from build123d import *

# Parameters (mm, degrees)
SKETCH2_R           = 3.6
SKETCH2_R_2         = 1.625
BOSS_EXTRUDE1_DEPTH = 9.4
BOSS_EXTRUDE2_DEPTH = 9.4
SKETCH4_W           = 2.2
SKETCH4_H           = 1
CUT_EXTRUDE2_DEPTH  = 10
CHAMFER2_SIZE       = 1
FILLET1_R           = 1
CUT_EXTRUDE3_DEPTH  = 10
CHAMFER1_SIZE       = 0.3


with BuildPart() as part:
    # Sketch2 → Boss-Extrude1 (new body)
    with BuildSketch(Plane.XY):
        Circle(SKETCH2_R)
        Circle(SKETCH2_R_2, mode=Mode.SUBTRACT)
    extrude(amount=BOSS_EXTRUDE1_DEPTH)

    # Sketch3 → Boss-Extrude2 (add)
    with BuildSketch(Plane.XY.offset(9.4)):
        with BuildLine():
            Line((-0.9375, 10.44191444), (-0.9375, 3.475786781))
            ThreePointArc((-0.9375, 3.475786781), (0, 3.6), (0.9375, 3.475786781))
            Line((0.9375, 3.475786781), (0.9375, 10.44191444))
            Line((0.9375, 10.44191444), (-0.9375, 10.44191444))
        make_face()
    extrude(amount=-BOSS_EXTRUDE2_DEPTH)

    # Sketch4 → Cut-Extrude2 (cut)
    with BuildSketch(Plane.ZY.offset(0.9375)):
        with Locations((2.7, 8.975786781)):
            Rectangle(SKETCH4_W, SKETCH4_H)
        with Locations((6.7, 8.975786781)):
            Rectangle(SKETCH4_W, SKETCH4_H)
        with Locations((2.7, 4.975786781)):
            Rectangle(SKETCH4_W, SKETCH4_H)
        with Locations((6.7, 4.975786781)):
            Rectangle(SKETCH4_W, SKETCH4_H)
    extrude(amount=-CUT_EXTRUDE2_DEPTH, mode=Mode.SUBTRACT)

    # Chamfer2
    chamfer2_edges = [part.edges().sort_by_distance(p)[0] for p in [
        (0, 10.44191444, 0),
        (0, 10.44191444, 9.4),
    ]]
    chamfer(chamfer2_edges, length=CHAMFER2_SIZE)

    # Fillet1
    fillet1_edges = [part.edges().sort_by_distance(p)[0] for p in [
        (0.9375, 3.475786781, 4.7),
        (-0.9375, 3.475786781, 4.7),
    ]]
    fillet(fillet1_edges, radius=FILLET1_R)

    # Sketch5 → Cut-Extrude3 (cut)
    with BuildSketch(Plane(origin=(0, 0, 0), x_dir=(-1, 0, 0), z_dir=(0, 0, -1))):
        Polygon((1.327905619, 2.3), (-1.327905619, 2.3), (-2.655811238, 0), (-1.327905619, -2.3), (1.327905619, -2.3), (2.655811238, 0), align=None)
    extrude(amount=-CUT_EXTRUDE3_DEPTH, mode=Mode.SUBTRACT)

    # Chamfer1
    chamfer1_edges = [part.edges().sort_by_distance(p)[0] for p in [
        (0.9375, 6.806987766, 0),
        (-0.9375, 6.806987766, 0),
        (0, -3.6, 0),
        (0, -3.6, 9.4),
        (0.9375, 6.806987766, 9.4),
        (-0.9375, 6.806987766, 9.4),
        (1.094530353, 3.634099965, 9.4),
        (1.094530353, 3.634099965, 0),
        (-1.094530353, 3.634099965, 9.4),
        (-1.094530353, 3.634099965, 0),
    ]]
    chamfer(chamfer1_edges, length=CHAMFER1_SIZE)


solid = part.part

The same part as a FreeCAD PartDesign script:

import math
import FreeCAD as App
import Part
import Sketcher

V = App.Vector
Q = App.Units.Quantity


def edges_at(feature, points):
    """Names of the edges that pass closest to the given points."""
    edges = feature.Shape.Edges
    near = lambda p: min(range(len(edges)), key=lambda i: edges[i].distToShape(Part.Vertex(*p))[0])
    return sorted({f"Edge{near(p) + 1}" for p in points})


def add_polygon(sketch, points):
    """Adds a closed chain of lines whose ends are joined by coincident constraints."""
    first, n = sketch.GeometryCount, len(points)
    for a, b in zip(points, points[1:] + points[:1]):
        sketch.addGeometry(Part.LineSegment(App.Vector(*a, 0), App.Vector(*b, 0)), False)
    for i in range(n):
        sketch.addConstraint(Sketcher.Constraint("Coincident", first + i, 2, first + (i + 1) % n, 1))

doc = App.newDocument("Part")
body = doc.addObject("PartDesign::Body", "Body")

sketch1 = body.newObject("Sketcher::SketchObject", "Sketch")
sketch1.AttachmentSupport = (doc.getObject("XY_Plane"), [""])
sketch1.MapMode = "FlatFace"
sketch1.addGeometry([
    Part.Circle(V(0, 0, 0), V(0, 0, 1), 3.6),
    Part.Circle(V(0, 0, 0), V(0, 0, 1), 1.625),
], False)
sketch1.addConstraint([
    Sketcher.Constraint("Coincident", 0, 3, -1, 1),
    Sketcher.Constraint("Coincident", 1, 3, -1, 1),
    Sketcher.Constraint("Diameter", 0, 7.2),
    Sketcher.Constraint("Diameter", 1, 3.25),
])
pad1 = body.newObject("PartDesign::Pad", "Pad")
pad1.Profile = sketch1
pad1.Length = 9.4

sketch2 = body.newObject("Sketcher::SketchObject", "Sketch001")
sketch2.AttachmentSupport = (doc.getObject("XY_Plane"), [""])
sketch2.MapMode = "FlatFace"
sketch2.AttachmentOffset = App.Placement(V(0, 0, 9.4), App.Rotation())
sketch2.addGeometry([
    Part.LineSegment(V(-0.9375, 10.441914, 0), V(-0.9375, 3.475787, 0)),
    Part.ArcOfCircle(Part.Circle(V(0, 0, 0), V(0, 0, 1), 3.6), math.radians(74.905213), math.radians(105.094787)),
    Part.LineSegment(V(0.9375, 3.475787, 0), V(0.9375, 10.441914, 0)),
    Part.LineSegment(V(0.9375, 10.441914, 0), V(-0.9375, 10.441914, 0)),
], False)
sketch2.addConstraint([
    Sketcher.Constraint("Coincident", 0, 2, 1, 2),
    Sketcher.Constraint("Coincident", 1, 1, 2, 1),
    Sketcher.Constraint("Coincident", 2, 2, 3, 1),
    Sketcher.Constraint("Coincident", 3, 2, 0, 1),
    Sketcher.Constraint("Vertical", 0),
    Sketcher.Constraint("Vertical", 2),
    Sketcher.Constraint("Horizontal", 3),
    Sketcher.Constraint("Coincident", 1, 3, -1, 1),
    Sketcher.Constraint("Horizontal", 0, 2, 1, 1),
    Sketcher.Constraint("Radius", 1, 3.6),
    Sketcher.Constraint("DistanceX", 3, 2, 3, 1, 1.875),
    Sketcher.Constraint("DistanceY", 0, 2, 0, 1, 6.966128),
])
pad2 = body.newObject("PartDesign::Pad", "Pad001")
pad2.Profile = sketch2
pad2.Length = 9.4
pad2.Reversed = True

sketch3 = body.newObject("Sketcher::SketchObject", "Sketch002")
sketch3.AttachmentSupport = (doc.getObject("YZ_Plane"), [""])
sketch3.MapMode = "FlatFace"
sketch3.AttachmentOffset = App.Placement(V(0, 0, -0.9375), App.Rotation())
add_polygon(sketch3, [(9.475787, 1.6), (8.475787, 1.6), (8.475787, 3.8), (9.475787, 3.8)])
add_polygon(sketch3, [(9.475787, 5.6), (8.475787, 5.6), (8.475787, 7.8), (9.475787, 7.8)])
add_polygon(sketch3, [(5.475787, 1.6), (4.475787, 1.6), (4.475787, 3.8), (5.475787, 3.8)])
add_polygon(sketch3, [(5.475787, 5.6), (4.475787, 5.6), (4.475787, 7.8), (5.475787, 7.8)])
sketch3.addConstraint([
    Sketcher.Constraint("Horizontal", 0),
    Sketcher.Constraint("Vertical", 1),
    Sketcher.Constraint("Horizontal", 2),
    Sketcher.Constraint("Vertical", 3),
    Sketcher.Constraint("Horizontal", 4),
    Sketcher.Constraint("Vertical", 5),
    Sketcher.Constraint("Horizontal", 6),
    Sketcher.Constraint("Vertical", 7),
    Sketcher.Constraint("Horizontal", 8),
    Sketcher.Constraint("Vertical", 9),
    Sketcher.Constraint("Horizontal", 10),
    Sketcher.Constraint("Vertical", 11),
    Sketcher.Constraint("Horizontal", 12),
    Sketcher.Constraint("Vertical", 13),
    Sketcher.Constraint("Horizontal", 14),
    Sketcher.Constraint("Vertical", 15),
    Sketcher.Constraint("Horizontal", 3, 2, 8, 2),
    Sketcher.Constraint("Horizontal", 2, 2, 9, 2),
    Sketcher.Constraint("Horizontal", 7, 2, 12, 2),
    Sketcher.Constraint("Horizontal", 6, 2, 13, 2),
    Sketcher.Constraint("Vertical", 1, 2, 4, 2),
    Sketcher.Constraint("Vertical", 3, 2, 6, 2),
    Sketcher.Constraint("Vertical", 9, 2, 12, 2),
    Sketcher.Constraint("Vertical", 11, 2, 14, 2),
    Sketcher.Constraint("Equal", 6, 8),
    Sketcher.Constraint("Equal", 3, 5),
    Sketcher.Constraint("DistanceX", 0, 2, 0, 1, 1.0),
    Sketcher.Constraint("DistanceY", 1, 1, 1, 2, 2.2),
    Sketcher.Constraint("DistanceY", 0, 2, 4, 2, 4.0),
    Sketcher.Constraint("DistanceX", 8, 2, 0, 2, 4.0),
    Sketcher.Constraint("DistanceY", -1, 1, 0, 2, 1.6),
    Sketcher.Constraint("DistanceX", -1, 1, 0, 2, 8.475787),
])
pocket1 = body.newObject("PartDesign::Pocket", "Pocket")
pocket1.Profile = sketch3
pocket1.Length = 10
pocket1.Reversed = True
doc.recompute()

chamfer = body.newObject("PartDesign::Chamfer", "Chamfer")
chamfer.Base = (pocket1, edges_at(pocket1, [(0, 10.442, 0), (0, 10.442, 9.4)]))
chamfer.Size = 1
doc.recompute()

fillet = body.newObject("PartDesign::Fillet", "Fillet")
fillet.Base = (chamfer, edges_at(chamfer, [(0.938, 3.476, 4.7), (-0.938, 3.476, 4.7)]))
fillet.Radius = 1

sketch4 = body.newObject("Sketcher::SketchObject", "Sketch003")
sketch4.AttachmentSupport = (doc.getObject("XY_Plane"), [""])
sketch4.MapMode = "FlatFace"
add_polygon(sketch4, [(-1.327906, 2.3), (1.327906, 2.3), (2.655811, 0), (1.327906, -2.3), (-1.327906, -2.3), (-2.655811, 0)])
sketch4.addConstraint([
    Sketcher.Constraint("Horizontal", 0),
    Sketcher.Constraint("Horizontal", 3),
    Sketcher.Constraint("Symmetric", 0, 2, 3, 2, -1, 1),
    Sketcher.Constraint("Symmetric", 1, 2, 4, 2, -1, 1),
    Sketcher.Constraint("PointOnObject", 1, 2, -1),
    Sketcher.Constraint("Parallel", 2, 5),
    Sketcher.Constraint("Vertical", 0, 2, 2, 2),
    Sketcher.Constraint("Angle", 1, Q("-60 deg")),
    Sketcher.Constraint("DistanceY", -1, 1, 0, 2, 2.3),
    Sketcher.Constraint("DistanceX", 0, 1, 0, 2, 2.655811),
])
pocket2 = body.newObject("PartDesign::Pocket", "Pocket001")
pocket2.Profile = sketch4
pocket2.Length = 10
pocket2.Reversed = True
doc.recompute()

chamfer2 = body.newObject("PartDesign::Chamfer", "Chamfer001")
chamfer2.Base = (pocket2, edges_at(pocket2, [
    (0.938, 6.807, 0),
    (-0.938, 6.807, 0),
    (0, -3.6, 0),
    (0, -3.6, 9.4),
    (0.938, 6.807, 9.4),
    (-0.938, 6.807, 9.4),
    (1.095, 3.634, 9.4),
    (1.095, 3.634, 0),
    (-1.095, 3.634, 9.4),
    (-1.095, 3.634, 0),
]))
chamfer2.Size = 0.3

doc.recompute()
